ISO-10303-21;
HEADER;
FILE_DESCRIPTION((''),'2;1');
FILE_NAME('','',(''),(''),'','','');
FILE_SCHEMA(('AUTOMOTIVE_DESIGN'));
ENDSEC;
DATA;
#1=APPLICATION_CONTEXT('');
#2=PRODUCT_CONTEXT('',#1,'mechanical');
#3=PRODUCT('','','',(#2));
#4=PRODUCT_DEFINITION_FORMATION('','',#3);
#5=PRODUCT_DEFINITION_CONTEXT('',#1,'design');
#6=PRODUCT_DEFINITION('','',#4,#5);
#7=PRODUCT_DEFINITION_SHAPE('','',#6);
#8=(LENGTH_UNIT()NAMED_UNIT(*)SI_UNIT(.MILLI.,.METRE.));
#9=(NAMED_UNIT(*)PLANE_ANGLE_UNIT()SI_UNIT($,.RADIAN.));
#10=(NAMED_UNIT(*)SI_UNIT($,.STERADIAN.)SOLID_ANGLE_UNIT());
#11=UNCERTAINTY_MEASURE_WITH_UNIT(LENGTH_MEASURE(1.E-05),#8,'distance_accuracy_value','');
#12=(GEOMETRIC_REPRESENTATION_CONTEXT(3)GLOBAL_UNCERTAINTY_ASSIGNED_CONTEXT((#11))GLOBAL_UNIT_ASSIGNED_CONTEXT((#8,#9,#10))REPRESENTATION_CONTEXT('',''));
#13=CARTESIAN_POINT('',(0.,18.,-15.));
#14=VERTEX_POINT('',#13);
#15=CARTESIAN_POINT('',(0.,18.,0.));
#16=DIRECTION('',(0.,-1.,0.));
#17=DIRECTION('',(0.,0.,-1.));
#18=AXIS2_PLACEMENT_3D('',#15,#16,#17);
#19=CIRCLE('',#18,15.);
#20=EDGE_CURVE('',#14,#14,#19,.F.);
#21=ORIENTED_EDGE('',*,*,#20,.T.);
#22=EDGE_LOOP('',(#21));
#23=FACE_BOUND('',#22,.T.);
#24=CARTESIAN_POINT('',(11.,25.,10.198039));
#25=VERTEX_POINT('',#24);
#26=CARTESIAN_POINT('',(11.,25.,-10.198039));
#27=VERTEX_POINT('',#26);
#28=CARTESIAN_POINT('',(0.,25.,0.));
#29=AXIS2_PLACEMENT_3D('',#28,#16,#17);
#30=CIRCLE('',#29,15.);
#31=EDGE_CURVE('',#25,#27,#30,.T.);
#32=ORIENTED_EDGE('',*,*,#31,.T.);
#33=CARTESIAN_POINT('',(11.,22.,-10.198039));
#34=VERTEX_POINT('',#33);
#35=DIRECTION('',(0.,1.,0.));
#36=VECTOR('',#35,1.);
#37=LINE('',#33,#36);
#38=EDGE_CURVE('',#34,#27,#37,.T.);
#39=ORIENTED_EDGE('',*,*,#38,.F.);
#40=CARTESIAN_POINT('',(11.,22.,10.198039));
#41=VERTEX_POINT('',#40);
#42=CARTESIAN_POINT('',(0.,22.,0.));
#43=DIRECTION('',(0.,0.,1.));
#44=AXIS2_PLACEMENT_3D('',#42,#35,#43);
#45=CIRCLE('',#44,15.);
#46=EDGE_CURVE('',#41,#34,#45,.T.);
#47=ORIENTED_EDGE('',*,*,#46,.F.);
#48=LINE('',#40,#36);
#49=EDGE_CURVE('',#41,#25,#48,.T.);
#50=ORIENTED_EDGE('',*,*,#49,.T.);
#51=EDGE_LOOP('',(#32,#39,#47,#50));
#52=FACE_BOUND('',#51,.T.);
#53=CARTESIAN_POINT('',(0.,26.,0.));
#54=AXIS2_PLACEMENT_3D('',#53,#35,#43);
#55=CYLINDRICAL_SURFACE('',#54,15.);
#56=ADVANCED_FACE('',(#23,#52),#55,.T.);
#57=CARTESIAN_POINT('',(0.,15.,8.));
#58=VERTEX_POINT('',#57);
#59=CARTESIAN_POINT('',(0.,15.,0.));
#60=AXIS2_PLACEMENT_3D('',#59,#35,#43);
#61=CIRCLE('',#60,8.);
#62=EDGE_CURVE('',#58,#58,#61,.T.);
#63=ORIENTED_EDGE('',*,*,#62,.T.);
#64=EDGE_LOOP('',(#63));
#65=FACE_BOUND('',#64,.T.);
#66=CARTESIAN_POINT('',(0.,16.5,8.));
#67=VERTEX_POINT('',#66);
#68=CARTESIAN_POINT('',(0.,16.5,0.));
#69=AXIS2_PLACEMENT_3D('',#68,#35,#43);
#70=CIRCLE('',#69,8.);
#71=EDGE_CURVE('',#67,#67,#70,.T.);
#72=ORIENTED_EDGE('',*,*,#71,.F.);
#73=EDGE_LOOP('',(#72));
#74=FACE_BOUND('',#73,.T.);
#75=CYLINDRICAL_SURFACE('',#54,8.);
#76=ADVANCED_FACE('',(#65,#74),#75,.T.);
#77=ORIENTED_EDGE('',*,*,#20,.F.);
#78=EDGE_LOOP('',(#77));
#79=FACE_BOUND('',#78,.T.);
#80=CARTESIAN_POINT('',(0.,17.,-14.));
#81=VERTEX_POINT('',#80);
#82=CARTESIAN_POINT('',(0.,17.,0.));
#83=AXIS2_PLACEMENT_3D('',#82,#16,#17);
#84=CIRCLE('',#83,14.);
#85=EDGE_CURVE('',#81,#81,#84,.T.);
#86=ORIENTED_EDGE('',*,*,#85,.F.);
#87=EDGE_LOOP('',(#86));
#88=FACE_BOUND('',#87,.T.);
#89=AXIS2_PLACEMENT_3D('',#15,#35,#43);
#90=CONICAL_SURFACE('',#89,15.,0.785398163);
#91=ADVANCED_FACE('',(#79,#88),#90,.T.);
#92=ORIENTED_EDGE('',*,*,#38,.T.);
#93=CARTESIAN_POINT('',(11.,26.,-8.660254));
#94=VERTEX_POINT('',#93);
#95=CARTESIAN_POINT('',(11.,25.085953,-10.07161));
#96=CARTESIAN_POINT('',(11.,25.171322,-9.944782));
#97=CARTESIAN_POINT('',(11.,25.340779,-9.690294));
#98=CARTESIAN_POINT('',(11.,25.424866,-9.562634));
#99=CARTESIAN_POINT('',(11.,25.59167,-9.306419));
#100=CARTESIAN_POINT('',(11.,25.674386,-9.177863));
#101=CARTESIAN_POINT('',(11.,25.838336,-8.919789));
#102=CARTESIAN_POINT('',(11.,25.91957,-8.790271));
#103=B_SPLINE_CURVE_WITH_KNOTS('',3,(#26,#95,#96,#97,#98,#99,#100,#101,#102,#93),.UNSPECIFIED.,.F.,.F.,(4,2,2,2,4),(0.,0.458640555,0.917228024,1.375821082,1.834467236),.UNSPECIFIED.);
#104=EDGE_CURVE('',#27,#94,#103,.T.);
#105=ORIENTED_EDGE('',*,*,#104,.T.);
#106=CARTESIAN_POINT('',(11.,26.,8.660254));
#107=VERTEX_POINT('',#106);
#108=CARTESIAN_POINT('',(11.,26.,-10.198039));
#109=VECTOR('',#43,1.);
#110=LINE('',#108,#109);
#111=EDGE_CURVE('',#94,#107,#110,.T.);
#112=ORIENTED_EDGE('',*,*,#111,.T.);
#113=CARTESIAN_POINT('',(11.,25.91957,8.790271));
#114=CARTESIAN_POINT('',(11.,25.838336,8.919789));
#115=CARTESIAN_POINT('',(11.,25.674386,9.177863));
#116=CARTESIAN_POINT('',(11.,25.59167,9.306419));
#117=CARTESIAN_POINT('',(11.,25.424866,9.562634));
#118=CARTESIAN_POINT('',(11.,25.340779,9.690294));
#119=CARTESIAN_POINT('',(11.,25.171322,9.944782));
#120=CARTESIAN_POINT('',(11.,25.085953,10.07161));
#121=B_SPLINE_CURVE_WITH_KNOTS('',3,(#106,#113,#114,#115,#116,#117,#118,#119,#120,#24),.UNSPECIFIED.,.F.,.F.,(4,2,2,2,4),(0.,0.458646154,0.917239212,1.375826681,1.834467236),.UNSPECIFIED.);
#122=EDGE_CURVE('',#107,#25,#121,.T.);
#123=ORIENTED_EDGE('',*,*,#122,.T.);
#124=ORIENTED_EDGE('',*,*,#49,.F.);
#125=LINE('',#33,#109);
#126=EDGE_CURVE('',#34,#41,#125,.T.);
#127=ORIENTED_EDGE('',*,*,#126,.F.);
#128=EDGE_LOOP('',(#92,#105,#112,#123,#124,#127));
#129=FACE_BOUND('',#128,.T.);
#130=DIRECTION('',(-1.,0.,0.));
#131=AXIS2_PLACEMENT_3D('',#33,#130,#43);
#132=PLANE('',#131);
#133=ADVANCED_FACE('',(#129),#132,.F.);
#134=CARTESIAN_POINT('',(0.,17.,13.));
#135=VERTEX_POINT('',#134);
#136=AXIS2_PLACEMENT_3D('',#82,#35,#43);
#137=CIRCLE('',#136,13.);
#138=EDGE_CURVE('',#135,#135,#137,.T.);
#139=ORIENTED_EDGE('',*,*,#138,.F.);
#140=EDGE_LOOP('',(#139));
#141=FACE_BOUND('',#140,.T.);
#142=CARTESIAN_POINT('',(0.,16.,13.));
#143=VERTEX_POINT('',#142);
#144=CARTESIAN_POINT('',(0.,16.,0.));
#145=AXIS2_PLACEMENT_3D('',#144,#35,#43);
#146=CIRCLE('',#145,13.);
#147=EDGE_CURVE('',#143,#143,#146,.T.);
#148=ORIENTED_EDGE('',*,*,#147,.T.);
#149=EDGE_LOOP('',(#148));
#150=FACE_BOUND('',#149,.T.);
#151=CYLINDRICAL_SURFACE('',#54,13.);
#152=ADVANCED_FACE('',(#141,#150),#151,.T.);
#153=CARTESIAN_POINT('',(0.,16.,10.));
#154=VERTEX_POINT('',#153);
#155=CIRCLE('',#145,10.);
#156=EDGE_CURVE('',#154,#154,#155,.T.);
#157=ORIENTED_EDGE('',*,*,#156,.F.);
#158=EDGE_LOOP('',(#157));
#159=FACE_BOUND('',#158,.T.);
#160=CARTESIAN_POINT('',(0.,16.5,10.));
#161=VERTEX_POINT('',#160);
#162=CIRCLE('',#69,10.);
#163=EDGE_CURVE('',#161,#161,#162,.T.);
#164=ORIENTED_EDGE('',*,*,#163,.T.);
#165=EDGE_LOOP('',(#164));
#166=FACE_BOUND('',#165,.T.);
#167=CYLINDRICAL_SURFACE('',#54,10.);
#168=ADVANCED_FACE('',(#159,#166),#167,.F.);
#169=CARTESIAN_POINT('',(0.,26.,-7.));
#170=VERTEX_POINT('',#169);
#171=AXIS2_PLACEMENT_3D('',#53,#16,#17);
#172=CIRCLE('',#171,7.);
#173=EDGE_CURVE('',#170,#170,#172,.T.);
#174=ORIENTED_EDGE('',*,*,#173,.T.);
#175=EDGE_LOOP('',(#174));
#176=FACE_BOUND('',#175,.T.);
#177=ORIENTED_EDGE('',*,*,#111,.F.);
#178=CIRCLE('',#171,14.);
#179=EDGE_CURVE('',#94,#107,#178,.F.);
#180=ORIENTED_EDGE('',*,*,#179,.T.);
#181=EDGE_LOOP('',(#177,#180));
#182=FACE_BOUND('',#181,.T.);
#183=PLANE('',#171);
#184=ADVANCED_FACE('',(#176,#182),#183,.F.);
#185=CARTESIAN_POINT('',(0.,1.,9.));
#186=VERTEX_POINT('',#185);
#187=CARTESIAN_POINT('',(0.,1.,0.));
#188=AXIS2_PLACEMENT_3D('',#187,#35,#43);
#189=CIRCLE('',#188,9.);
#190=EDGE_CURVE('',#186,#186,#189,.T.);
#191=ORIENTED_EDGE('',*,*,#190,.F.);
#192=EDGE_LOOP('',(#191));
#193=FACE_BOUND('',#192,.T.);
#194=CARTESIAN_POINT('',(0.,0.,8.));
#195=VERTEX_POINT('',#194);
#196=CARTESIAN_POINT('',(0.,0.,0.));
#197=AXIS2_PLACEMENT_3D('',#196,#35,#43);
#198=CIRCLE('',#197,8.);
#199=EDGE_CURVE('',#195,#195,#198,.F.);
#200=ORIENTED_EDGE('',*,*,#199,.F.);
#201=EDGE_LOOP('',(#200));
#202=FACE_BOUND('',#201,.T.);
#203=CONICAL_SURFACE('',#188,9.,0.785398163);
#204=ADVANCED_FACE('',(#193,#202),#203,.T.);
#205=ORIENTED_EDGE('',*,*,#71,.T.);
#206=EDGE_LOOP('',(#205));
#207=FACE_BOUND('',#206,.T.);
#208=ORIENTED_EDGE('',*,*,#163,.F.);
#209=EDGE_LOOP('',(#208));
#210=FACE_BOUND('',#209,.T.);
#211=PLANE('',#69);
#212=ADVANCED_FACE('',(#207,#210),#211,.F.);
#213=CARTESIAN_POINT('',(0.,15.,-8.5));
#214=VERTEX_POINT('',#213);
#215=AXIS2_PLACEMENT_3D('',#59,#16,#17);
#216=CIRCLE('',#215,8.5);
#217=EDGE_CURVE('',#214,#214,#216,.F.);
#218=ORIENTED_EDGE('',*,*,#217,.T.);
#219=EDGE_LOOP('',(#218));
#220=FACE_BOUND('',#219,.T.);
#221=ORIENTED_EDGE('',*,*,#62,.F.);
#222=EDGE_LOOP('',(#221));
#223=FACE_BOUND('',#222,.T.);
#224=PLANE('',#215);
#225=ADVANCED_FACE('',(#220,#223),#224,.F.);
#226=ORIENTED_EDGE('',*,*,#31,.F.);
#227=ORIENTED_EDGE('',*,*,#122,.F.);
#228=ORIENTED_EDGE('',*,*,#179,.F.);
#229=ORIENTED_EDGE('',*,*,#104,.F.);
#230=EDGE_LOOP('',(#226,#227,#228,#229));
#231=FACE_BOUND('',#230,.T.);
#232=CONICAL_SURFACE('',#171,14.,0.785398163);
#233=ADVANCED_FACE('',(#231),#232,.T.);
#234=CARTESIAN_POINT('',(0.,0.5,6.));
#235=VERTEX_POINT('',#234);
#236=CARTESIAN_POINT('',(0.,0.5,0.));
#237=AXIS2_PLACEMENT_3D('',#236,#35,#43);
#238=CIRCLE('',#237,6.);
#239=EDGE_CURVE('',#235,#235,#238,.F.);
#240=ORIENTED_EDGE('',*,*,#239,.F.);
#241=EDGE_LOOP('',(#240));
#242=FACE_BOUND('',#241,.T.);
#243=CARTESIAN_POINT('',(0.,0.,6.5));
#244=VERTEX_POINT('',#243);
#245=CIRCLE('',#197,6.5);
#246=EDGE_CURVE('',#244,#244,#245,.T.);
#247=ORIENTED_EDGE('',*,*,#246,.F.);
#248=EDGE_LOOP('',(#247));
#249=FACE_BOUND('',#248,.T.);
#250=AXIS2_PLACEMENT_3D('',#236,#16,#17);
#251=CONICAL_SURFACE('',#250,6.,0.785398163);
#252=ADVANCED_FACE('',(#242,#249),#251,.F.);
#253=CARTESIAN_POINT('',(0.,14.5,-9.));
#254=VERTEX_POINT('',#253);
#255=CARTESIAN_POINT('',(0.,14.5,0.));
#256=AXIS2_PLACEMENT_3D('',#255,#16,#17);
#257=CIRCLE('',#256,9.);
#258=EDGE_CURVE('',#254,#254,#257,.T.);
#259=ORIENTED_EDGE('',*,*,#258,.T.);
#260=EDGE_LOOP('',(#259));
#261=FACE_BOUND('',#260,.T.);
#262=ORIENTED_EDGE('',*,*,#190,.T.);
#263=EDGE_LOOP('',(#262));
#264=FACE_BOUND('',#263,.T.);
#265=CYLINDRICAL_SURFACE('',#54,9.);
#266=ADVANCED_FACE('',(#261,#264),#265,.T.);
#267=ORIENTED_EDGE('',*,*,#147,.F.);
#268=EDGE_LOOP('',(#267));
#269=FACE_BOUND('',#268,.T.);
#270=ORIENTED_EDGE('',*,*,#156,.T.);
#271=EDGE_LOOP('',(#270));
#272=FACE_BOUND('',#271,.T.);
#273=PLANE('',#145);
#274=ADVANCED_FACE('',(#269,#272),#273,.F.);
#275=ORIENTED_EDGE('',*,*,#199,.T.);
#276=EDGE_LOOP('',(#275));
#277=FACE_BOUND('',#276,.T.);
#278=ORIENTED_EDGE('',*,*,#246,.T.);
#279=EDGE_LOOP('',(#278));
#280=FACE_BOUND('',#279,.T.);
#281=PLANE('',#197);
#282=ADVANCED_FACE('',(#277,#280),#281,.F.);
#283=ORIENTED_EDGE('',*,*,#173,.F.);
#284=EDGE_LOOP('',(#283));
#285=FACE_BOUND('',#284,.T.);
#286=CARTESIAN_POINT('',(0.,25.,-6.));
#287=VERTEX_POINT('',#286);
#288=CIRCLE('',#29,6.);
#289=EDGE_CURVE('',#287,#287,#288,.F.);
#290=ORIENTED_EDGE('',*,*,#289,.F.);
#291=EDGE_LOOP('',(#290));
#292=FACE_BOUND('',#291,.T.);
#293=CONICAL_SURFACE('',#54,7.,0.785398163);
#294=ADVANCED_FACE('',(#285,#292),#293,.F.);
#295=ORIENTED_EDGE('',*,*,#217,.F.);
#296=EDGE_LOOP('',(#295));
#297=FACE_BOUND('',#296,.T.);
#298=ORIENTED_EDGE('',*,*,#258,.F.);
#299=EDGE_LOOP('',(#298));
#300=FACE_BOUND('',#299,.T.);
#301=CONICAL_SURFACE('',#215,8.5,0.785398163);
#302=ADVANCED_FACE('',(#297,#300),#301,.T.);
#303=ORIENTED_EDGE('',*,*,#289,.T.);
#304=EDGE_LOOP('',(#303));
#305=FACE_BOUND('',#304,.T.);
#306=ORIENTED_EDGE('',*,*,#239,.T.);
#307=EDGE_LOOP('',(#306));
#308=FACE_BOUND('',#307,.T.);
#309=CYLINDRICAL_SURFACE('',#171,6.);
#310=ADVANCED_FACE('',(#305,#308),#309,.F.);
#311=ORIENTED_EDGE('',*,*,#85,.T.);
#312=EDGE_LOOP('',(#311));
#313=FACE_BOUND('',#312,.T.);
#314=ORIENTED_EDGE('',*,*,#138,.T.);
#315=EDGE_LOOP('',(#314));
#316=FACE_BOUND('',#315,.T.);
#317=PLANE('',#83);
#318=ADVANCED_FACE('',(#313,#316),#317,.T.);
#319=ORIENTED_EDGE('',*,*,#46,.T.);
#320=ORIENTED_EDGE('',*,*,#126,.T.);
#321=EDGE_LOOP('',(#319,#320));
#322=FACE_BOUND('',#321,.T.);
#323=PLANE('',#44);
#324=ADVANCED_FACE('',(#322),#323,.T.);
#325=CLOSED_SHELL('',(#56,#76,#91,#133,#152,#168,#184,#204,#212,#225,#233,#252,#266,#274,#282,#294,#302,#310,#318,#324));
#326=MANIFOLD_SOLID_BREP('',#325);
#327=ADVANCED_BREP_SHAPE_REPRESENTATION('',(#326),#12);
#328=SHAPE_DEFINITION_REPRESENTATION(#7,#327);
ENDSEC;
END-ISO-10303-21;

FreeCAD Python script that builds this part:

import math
import FreeCAD as App
import Part
import Sketcher

V = App.Vector
Q = App.Units.Quantity


def edges_at(feature, points):
    """Names of the edges that pass closest to the given points."""
    edges = feature.Shape.Edges
    near = lambda p: min(range(len(edges)), key=lambda i: edges[i].distToShape(Part.Vertex(*p))[0])
    return sorted({f"Edge{near(p) + 1}" for p in points})

doc = App.newDocument("Part")
params = doc.addObject("Spreadsheet::Sheet", "Params")
for row, (alias, value) in enumerate([
    ("sketch1_width", "9 mm"),
    ("sketch1_width2", "1 mm"),
    ("sketch1_width3", "2 mm"),
    ("sketch1_width4", "3 mm"),
    ("sketch1_height", "26 mm"),
    ("revolution_angle", "360 deg"),
    ("sketch2_diameter", "12 mm"),
    ("sketch3_radius", "15 mm"),
    ("pocket2_length", "4 mm"),
    ("chamfer_size", "1 mm"),
    ("chamfer2_size", "0.5 mm"),
], start=1):
    params.set(f"A{row}", alias)
    params.set(f"B{row}", "=" + value)
    params.setAlias(f"B{row}", alias)

body = doc.addObject("PartDesign::Body", "Body")

sketch1 = body.newObject("Sketcher::SketchObject", "Sketch")
sketch1.AttachmentSupport = (doc.getObject("XY_Plane"), [""])
sketch1.MapMode = "FlatFace"
sketch1.addGeometry([
    Part.LineSegment(V(0, 0, 0), V(9, 0, 0)),
    Part.LineSegment(V(9, 0, 0), V(9, 15, 0)),
    Part.LineSegment(V(9, 15, 0), V(8, 15, 0)),
    Part.LineSegment(V(8, 15, 0), V(8, 16.5, 0)),
    Part.LineSegment(V(8, 16.5, 0), V(10, 16.5, 0)),
    Part.LineSegment(V(10, 16.5, 0), V(10, 16, 0)),
    Part.LineSegment(V(10, 16, 0), V(13, 16, 0)),
    Part.LineSegment(V(13, 16, 0), V(13, 17, 0)),
    Part.LineSegment(V(13, 17, 0), V(15, 17, 0)),
    Part.LineSegment(V(15, 17, 0), V(15, 26, 0)),
    Part.LineSegment(V(15, 26, 0), V(0, 26, 0)),
    Part.LineSegment(V(0, 26, 0), V(0, 0, 0)),
], False)
sketch1.addConstraint([
    Sketcher.Constraint("Coincident", 0, 2, 1, 1),
    Sketcher.Constraint("Coincident", 1, 2, 2, 1),
    Sketcher.Constraint("Coincident", 2, 2, 3, 1),
    Sketcher.Constraint("Coincident", 3, 2, 4, 1),
    Sketcher.Constraint("Coincident", 4, 2, 5, 1),
    Sketcher.Constraint("Coincident", 5, 2, 6, 1),
    Sketcher.Constraint("Coincident", 6, 2, 7, 1),
    Sketcher.Constraint("Coincident", 7, 2, 8, 1),
    Sketcher.Constraint("Coincident", 8, 2, 9, 1),
    Sketcher.Constraint("Coincident", 9, 2, 10, 1),
    Sketcher.Constraint("Coincident", 10, 2, 11, 1),
    Sketcher.Constraint("Coincident", 11, 2, 0, 1),
    Sketcher.Constraint("Horizontal", 0),
    Sketcher.Constraint("Vertical", 1),
    Sketcher.Constraint("Horizontal", 2),
    Sketcher.Constraint("Vertical", 3),
    Sketcher.Constraint("Horizontal", 4),
    Sketcher.Constraint("Vertical", 5),
    Sketcher.Constraint("Horizontal", 6),
    Sketcher.Constraint("Vertical", 7),
    Sketcher.Constraint("Horizontal", 8),
    Sketcher.Constraint("Vertical", 9),
    Sketcher.Constraint("Horizontal", 10),
    Sketcher.Constraint("Vertical", 11),
    Sketcher.Constraint("Coincident", 11, 2, -1, 1),
    Sketcher.Constraint("Equal", 4, 8),
    Sketcher.Constraint("Equal", 10, 1),
    Sketcher.Constraint("Equal", 2, 7),
    Sketcher.Constraint("Equal", 0, 9),
    Sketcher.Constraint("DistanceX", 0, 1, 0, 2, Q("9 mm")),
    Sketcher.Constraint("DistanceX", 2, 2, 2, 1, Q("1 mm")),
    Sketcher.Constraint("DistanceX", 4, 1, 4, 2, Q("2 mm")),
    Sketcher.Constraint("DistanceX", 6, 1, 6, 2, Q("3 mm")),
    Sketcher.Constraint("DistanceY", 11, 2, 11, 1, Q("26 mm")),
    Sketcher.Constraint("DistanceY", 3, 1, 3, 2, Q("1.5 mm")),
])
sketch1.setExpression("Constraints[29]", "Params.sketch1_width")
sketch1.setExpression("Constraints[30]", "Params.sketch1_width2")
sketch1.setExpression("Constraints[31]", "Params.sketch1_width3")
sketch1.setExpression("Constraints[32]", "Params.sketch1_width4")
sketch1.setExpression("Constraints[33]", "Params.sketch1_height")
revolution = body.newObject("PartDesign::Revolution", "Revolution")
revolution.Profile = sketch1
revolution.ReferenceAxis = (sketch1, ["V_Axis"])
revolution.setExpression("Angle", "Params.revolution_angle")

sketch2 = body.newObject("Sketcher::SketchObject", "Sketch001")
sketch2.AttachmentSupport = (doc.getObject("XZ_Plane"), [""])
sketch2.MapMode = "FlatFace"
sketch2.addGeometry(Part.Circle(V(0, 0, 0), V(0, 0, 1), 6), False)
sketch2.addConstraint([
    Sketcher.Constraint("Coincident", 0, 3, -1, 1),
    Sketcher.Constraint("Diameter", 0, Q("12 mm")),
])
sketch2.setExpression("Constraints[1]", "Params.sketch2_diameter")
pocket1 = body.newObject("PartDesign::Pocket", "Pocket")
pocket1.Profile = sketch2
pocket1.Type = "ThroughAll"

sketch3 = body.newObject("Sketcher::SketchObject", "Sketch002")
sketch3.AttachmentSupport = (doc.getObject("XZ_Plane"), [""])
sketch3.MapMode = "FlatFace"
sketch3.AttachmentOffset = App.Placement(V(0, 0, -26), App.Rotation())
sketch3.addGeometry([
    Part.LineSegment(V(11, -10.198039, 0), V(11, 10.198039, 0)),
    Part.ArcOfCircle(Part.Circle(V(0, 0, 0), V(0, 0, 1), 15), math.radians(-42.833428), math.radians(42.833428)),
], False)
sketch3.addConstraint([
    Sketcher.Constraint("Coincident", 0, 1, 1, 1),
    Sketcher.Constraint("Coincident", 1, 2, 0, 2),
    Sketcher.Constraint("Vertical", 0),
    Sketcher.Constraint("Coincident", 1, 3, -1, 1),
    Sketcher.Constraint("Radius", 1, Q("15 mm")),
    Sketcher.Constraint("DistanceX", -1, 1, 0, 1, Q("11 mm")),
])
sketch3.setExpression("Constraints[4]", "Params.sketch3_radius")
pocket2 = body.newObject("PartDesign::Pocket", "Pocket001")
pocket2.Profile = sketch3
pocket2.setExpression("Length", "Params.pocket2_length")
pocket2.Reversed = True
doc.recompute()

chamfer = body.newObject("PartDesign::Chamfer", "Chamfer")
chamfer.Base = (pocket2, edges_at(pocket2, [
    (-9, 0, 0),
    (-15, 17, 0),
    (-6, 26, 0),
    (-15, 26, 0),
]))
chamfer.setExpression("Size", "Params.chamfer_size")
doc.recompute()

chamfer2 = body.newObject("PartDesign::Chamfer", "Chamfer001")
chamfer2.Base = (chamfer, edges_at(chamfer, [(-9, 15, 0), (-6, 0, 0)]))
chamfer2.setExpression("Size", "Params.chamfer2_size")

doc.recompute()
